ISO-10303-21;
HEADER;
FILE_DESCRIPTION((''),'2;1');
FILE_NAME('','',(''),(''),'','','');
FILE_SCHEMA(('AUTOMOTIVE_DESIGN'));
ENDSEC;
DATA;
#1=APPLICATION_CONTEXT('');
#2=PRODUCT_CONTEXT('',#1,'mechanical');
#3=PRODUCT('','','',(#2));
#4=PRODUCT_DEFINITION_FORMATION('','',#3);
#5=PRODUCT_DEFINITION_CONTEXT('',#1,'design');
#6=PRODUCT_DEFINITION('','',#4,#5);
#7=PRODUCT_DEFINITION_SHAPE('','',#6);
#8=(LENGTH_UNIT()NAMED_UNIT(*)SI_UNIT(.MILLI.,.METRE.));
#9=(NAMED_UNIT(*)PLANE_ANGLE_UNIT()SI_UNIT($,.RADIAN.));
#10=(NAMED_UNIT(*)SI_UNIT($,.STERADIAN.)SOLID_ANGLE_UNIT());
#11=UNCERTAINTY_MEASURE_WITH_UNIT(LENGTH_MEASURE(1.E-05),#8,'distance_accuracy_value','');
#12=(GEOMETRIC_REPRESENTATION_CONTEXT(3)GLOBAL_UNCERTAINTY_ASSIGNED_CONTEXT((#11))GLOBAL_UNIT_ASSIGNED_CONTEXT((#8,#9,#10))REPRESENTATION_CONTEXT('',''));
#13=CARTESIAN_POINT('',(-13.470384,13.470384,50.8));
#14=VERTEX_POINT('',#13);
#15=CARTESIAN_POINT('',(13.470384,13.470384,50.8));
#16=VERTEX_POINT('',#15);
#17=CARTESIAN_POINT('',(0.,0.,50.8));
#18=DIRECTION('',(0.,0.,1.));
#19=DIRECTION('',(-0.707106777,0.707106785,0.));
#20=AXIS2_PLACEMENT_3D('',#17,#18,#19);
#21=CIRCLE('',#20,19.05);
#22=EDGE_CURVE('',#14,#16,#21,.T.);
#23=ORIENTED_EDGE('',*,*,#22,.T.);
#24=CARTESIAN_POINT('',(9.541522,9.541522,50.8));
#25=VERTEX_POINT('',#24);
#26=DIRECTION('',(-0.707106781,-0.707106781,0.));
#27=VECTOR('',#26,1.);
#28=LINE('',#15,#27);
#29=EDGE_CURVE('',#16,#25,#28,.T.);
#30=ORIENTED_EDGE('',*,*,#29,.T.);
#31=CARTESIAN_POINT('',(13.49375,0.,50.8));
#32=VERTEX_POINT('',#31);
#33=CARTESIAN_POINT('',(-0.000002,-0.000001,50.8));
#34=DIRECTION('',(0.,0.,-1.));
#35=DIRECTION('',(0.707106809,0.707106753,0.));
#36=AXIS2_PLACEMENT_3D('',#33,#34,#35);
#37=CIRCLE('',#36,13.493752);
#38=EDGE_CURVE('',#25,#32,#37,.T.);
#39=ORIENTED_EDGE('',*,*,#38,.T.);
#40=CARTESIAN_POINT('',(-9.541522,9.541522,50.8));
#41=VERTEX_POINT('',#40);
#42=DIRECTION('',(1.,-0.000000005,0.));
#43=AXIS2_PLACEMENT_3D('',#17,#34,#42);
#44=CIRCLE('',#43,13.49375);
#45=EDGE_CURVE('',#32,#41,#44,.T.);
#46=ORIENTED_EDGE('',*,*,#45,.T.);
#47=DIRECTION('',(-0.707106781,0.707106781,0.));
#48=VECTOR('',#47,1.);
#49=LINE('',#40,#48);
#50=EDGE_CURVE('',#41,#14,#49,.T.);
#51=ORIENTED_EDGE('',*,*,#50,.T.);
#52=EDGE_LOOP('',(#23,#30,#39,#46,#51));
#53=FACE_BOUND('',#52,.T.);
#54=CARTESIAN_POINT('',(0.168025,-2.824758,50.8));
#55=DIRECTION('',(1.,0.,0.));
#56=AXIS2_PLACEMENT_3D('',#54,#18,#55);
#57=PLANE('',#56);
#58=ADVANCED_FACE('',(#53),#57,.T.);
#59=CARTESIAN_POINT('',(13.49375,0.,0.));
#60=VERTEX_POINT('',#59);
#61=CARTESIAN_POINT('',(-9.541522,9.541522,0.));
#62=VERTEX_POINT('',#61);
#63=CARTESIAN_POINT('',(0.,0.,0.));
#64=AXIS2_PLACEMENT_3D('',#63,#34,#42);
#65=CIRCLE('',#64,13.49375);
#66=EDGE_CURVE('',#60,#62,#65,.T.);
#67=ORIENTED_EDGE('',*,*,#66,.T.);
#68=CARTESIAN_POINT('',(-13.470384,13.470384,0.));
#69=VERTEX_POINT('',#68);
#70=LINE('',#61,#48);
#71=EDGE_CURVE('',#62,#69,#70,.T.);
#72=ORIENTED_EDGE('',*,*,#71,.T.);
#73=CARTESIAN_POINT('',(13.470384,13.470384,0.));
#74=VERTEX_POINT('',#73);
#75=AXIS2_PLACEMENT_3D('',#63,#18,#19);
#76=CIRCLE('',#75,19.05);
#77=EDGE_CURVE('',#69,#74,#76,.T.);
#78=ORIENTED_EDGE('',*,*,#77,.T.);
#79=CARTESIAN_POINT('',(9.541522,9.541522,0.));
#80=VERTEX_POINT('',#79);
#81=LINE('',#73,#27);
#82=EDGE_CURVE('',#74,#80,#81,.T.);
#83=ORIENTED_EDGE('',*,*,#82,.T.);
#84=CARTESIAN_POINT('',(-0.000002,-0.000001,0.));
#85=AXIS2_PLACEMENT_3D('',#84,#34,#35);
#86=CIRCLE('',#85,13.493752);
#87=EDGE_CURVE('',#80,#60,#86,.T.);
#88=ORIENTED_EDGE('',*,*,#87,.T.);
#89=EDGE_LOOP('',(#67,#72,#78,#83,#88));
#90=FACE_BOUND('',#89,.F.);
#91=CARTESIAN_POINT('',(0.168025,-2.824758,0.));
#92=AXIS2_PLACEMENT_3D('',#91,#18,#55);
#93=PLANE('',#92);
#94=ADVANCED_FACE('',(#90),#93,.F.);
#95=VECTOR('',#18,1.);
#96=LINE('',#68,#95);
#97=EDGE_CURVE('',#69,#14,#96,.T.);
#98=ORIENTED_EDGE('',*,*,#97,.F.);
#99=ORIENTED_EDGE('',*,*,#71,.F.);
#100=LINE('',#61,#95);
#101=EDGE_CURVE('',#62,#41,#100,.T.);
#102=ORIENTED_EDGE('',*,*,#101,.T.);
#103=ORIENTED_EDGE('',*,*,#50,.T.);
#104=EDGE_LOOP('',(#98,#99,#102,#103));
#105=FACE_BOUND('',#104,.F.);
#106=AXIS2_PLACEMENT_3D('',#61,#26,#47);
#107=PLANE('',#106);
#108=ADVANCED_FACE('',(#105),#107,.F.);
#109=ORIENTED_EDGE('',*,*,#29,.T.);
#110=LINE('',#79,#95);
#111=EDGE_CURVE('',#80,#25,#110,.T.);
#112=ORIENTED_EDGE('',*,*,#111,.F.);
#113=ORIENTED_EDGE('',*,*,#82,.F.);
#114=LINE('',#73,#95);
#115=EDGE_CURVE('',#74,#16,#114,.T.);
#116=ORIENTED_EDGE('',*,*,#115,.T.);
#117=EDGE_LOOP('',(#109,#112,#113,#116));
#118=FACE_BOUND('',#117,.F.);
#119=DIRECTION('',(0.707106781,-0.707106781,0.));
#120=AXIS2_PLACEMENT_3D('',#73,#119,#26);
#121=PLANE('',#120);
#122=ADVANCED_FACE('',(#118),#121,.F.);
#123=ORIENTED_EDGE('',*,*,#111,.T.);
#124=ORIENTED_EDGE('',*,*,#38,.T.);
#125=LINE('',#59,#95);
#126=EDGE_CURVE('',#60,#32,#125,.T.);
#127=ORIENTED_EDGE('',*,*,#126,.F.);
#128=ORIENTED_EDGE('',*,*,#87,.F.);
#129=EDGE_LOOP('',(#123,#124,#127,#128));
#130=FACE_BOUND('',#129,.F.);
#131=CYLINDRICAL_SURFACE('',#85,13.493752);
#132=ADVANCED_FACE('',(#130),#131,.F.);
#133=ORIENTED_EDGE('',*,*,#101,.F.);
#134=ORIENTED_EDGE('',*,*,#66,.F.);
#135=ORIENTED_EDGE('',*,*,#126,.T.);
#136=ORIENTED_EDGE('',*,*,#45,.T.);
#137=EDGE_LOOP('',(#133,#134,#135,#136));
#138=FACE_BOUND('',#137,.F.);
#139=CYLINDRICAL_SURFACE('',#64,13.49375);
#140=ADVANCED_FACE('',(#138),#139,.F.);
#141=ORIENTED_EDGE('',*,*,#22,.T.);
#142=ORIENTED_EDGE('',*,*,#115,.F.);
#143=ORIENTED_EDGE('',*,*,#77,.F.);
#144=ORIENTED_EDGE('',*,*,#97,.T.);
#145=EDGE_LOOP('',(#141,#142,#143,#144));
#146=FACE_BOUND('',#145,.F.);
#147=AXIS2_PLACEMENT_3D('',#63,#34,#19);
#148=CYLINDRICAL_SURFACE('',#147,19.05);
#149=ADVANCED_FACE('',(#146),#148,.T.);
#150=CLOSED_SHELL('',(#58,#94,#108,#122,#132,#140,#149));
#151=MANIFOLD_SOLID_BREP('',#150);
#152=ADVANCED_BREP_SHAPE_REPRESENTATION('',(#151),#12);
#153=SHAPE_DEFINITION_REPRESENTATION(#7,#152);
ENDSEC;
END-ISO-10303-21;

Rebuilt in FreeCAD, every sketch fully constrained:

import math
import FreeCAD as App
import Part
import Sketcher
from FreeCAD import Vector
Q = App.Units.Quantity

doc = App.newDocument("Part")
body = doc.addObject("PartDesign::Body", "Body")

# Sketch on XY plane
sketch1 = body.newObject("Sketcher::SketchObject", "Sketch")
sketch1.AttachmentSupport = (doc.getObject("XY_Plane"), [""])
sketch1.MapMode = "FlatFace"
sketch1.addGeometry([
    Part.ArcOfCircle(Part.Circle(Vector(-0.000002, -0.000001, 0), Vector(0, 0, 1), 13.493752), math.radians(0.000004), math.radians(44.999998)),  # 0
    Part.ArcOfCircle(Part.Circle(Vector(0, 0, 0), Vector(0, 0, 1), 13.49375), math.radians(135.000001), math.radians(360)),  # 1
    Part.LineSegment(Vector(-9.541522, 9.541522, 0), Vector(-13.470384, 13.470384, 0)),  # 2
    Part.ArcOfCircle(Part.Circle(Vector(0, 0, 0), Vector(0, 0, 1), 19.05), math.radians(135), math.radians(405)),  # 3
    Part.LineSegment(Vector(13.470384, 13.470384, 0), Vector(9.541522, 9.541522, 0)),  # 4
], False)
sketch1.addConstraint([
    Sketcher.Constraint("Tangent", 0, 1, 1, 2),
    Sketcher.Constraint("Coincident", 1, 1, 2, 1),
    Sketcher.Constraint("Coincident", 2, 2, 3, 1),
    Sketcher.Constraint("Coincident", 3, 2, 4, 1),
    Sketcher.Constraint("Coincident", 4, 2, 0, 2),
    Sketcher.Constraint("Coincident", 0, 3, -1, 1),
    Sketcher.Constraint("Coincident", 3, 3, -1, 1),
    Sketcher.Constraint("Equal", 0, 1),
    Sketcher.Constraint("PointOnObject", 0, 1, -1),
    Sketcher.Constraint("Perpendicular", 2, 4),
    Sketcher.Constraint("Horizontal", 2, 2, 3, 2),
    Sketcher.Constraint("Horizontal", 1, 1, 4, 2),
    Sketcher.Constraint("Radius", 3, Q("0.75 in")),
    Sketcher.Constraint("Radius", 0, Q("0.5312501 in")),
    Sketcher.Constraint("DistanceX", 1, 1, -1, 1, 9.541522),
])
pad1 = body.newObject("PartDesign::Pad", "Pad")
pad1.Profile = sketch1
pad1.Length = Q("2 in")

doc.recompute()
